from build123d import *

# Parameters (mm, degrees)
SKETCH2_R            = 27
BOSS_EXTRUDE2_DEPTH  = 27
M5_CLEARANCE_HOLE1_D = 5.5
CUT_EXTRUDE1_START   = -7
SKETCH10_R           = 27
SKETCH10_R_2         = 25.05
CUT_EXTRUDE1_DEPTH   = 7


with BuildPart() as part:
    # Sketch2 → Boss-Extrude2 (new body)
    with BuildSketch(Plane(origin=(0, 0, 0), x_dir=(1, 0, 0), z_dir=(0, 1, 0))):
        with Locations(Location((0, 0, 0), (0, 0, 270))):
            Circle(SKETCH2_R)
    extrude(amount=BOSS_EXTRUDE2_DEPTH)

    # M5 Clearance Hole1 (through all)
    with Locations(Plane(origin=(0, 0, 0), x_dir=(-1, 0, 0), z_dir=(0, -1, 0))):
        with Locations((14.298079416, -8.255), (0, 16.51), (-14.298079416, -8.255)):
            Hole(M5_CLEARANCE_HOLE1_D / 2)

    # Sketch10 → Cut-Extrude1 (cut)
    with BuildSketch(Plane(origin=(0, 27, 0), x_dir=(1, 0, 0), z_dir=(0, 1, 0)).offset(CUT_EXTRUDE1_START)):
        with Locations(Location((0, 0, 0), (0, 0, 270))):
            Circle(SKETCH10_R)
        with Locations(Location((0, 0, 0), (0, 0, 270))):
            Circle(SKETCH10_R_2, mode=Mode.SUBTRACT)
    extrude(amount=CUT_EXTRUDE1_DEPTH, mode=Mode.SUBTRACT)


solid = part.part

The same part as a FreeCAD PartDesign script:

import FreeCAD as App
import Part
import Sketcher

V = App.Vector

doc = App.newDocument("Part")
params = doc.addObject("Spreadsheet::Sheet", "Params")
for row, (alias, value) in enumerate([
    ("sketch1_diameter", "54 mm"),
    ("pad1_length", "27 mm"),
    ("sketch2_diameter", "5.5 mm"),
    ("hole_diameter", "5.5 mm"),
    ("sketch3_diameter", "54 mm"),
    ("sketch3_diameter2", "50.1 mm"),
    ("pocket1_length", "7 mm"),
], start=1):
    params.set(f"A{row}", alias)
    params.set(f"B{row}", "=" + value)
    params.setAlias(f"B{row}", alias)

body = doc.addObject("PartDesign::Body", "Body")

# Sketch on XZ plane
sketch1 = body.newObject("Sketcher::SketchObject", "Sketch")
sketch1.AttachmentSupport = (doc.getObject("XZ_Plane"), [""])
sketch1.MapMode = "FlatFace"
sketch1.addGeometry(Part.Circle(V(0, 0, 0), V(0, 0, 1), 27), False)
sketch1.addConstraint(Sketcher.Constraint("Coincident", 0, 3, -1, 1))
sketch1.addConstraint(Sketcher.Constraint("Diameter", 0, 54.0))
sketch1.setExpression("Constraints[1]", "Params.sketch1_diameter")
pad1 = body.newObject("PartDesign::Pad", "Pad")
pad1.Profile = sketch1
pad1.setExpression("Length", "Params.pad1_length")
pad1.Reversed = True

# Sketch on XZ plane
sketch2 = body.newObject("Sketcher::SketchObject", "Sketch001")
sketch2.AttachmentSupport = (doc.getObject("XZ_Plane"), [""])
sketch2.MapMode = "FlatFace"
sketch2.addGeometry(Part.Circle(V(-14.3, 8.3, 0), V(0, 0, 1), 2.8), False)
sketch2.addGeometry(Part.Circle(V(0, -16.5, 0), V(0, 0, 1), 2.8), False)
sketch2.addGeometry(Part.Circle(V(14.3, 8.3, 0), V(0, 0, 1), 2.8), False)
sketch2.addConstraint(Sketcher.Constraint("Equal", 0, 1))
sketch2.addConstraint(Sketcher.Constraint("Equal", 1, 2))
sketch2.addConstraint(Sketcher.Constraint("Symmetric", 0, 3, 2, 3, -2))
sketch2.addConstraint(Sketcher.Constraint("PointOnObject", 1, 3, -2))
sketch2.addConstraint(Sketcher.Constraint("Diameter", 0, 5.5))
sketch2.addConstraint(Sketcher.Constraint("DistanceY", 1, 3, -1, 1, 16.51))
sketch2.addConstraint(Sketcher.Constraint("DistanceY", -1, 1, 0, 3, 8.255))
sketch2.addConstraint(Sketcher.Constraint("DistanceX", 0, 3, -1, 1, 14.298079))
sketch2.setExpression("Constraints[4]", "Params.sketch2_diameter")
doc.recompute()
hole = body.newObject("PartDesign::Hole", "Hole")
hole.Profile = sketch2
hole.ThreadType = "None"
hole.setExpression("Diameter", "Params.hole_diameter")
hole.DepthType = "ThroughAll"

# Sketch on XZ plane
sketch3 = body.newObject("Sketcher::SketchObject", "Sketch002")
sketch3.AttachmentSupport = (doc.getObject("XZ_Plane"), [""])
sketch3.MapMode = "FlatFace"
sketch3.AttachmentOffset = App.Placement(V(0, 0, -20), App.Rotation())
sketch3.addGeometry(Part.Circle(V(0, 0, 0), V(0, 0, 1), 27), False)
sketch3.addGeometry(Part.Circle(V(0, 0, 0), V(0, 0, 1), 25), False)
sketch3.addConstraint(Sketcher.Constraint("Coincident", 0, 3, -1, 1))
sketch3.addConstraint(Sketcher.Constraint("Coincident", 1, 3, -1, 1))
sketch3.addConstraint(Sketcher.Constraint("Diameter", 0, 54.0))
sketch3.addConstraint(Sketcher.Constraint("Diameter", 1, 50.1))
sketch3.setExpression("Constraints[2]", "Params.sketch3_diameter")
sketch3.setExpression("Constraints[3]", "Params.sketch3_diameter2")
pocket1 = body.newObject("PartDesign::Pocket", "Pocket")
pocket1.Profile = sketch3
pocket1.setExpression("Length", "Params.pocket1_length")

doc.recompute()
